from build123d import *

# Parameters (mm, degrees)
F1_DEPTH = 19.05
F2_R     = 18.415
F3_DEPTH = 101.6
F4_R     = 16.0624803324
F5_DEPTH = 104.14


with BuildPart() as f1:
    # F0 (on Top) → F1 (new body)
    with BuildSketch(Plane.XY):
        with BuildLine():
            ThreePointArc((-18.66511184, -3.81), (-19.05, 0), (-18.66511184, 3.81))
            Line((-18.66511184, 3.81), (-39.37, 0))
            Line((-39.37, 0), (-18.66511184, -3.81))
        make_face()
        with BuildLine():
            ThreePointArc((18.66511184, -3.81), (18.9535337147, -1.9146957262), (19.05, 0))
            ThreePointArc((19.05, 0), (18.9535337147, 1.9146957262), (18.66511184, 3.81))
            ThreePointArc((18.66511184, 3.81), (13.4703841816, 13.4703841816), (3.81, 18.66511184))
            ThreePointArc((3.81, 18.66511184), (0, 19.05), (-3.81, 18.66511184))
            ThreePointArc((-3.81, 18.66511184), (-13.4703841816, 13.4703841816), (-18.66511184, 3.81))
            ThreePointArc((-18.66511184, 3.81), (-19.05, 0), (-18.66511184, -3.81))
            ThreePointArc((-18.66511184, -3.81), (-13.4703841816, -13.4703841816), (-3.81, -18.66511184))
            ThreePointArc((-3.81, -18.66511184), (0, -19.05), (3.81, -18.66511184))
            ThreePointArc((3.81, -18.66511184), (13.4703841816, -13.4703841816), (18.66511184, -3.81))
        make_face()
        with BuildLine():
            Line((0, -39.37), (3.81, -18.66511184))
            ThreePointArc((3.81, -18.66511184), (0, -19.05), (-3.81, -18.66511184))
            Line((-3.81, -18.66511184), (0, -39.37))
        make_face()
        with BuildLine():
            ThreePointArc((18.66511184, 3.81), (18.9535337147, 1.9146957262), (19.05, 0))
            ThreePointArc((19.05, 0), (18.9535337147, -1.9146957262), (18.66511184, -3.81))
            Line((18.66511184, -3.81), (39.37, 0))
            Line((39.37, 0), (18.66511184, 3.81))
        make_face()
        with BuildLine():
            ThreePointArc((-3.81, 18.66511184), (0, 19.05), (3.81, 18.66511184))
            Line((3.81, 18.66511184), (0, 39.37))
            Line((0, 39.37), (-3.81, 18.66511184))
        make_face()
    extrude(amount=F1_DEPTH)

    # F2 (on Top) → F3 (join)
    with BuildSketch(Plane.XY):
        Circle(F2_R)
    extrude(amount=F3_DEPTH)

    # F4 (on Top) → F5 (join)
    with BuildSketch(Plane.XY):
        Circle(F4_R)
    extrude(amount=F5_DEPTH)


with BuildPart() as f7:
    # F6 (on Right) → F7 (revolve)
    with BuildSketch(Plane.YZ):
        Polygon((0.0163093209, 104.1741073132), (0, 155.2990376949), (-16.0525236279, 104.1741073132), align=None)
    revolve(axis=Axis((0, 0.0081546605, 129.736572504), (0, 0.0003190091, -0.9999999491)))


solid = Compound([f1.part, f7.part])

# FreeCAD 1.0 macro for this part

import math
import FreeCAD as App
import Part
import Sketcher
from FreeCAD import Vector
Q = App.Units.Quantity


def add_polygon(sketch, points):
    """Adds a closed chain of lines whose ends are joined by coincident constraints."""
    first, n = sketch.GeometryCount, len(points)
    for a, b in zip(points, points[1:] + points[:1]):
        sketch.addGeometry(Part.LineSegment(App.Vector(*a, 0), App.Vector(*b, 0)), False)
    for i in range(n):
        sketch.addConstraint(Sketcher.Constraint("Coincident", first + i, 2, first + (i + 1) % n, 1))

doc = App.newDocument("Part")
body = doc.addObject("PartDesign::Body", "Body")

# Sketch on XY plane
sketch1 = body.newObject("Sketcher::SketchObject", "Sketch")
sketch1.AttachmentSupport = (doc.getObject("XY_Plane"), [""])
sketch1.MapMode = "FlatFace"
sketch1.addGeometry([
    Part.LineSegment(Vector(-19, 4, 0), Vector(-39, 0, 0)),  # 0
    Part.LineSegment(Vector(-39, 0, 0), Vector(-19, -4, 0)),  # 1
    Part.ArcOfCircle(Part.Circle(Vector(0, 0, 0), Vector(0, 0, 1), 19), math.radians(-168), math.radians(-102)),  # 2
    Part.LineSegment(Vector(-4, -19, 0), Vector(0, -39, 0)),  # 3
    Part.LineSegment(Vector(0, -39, 0), Vector(4, -19, 0)),  # 4
    Part.ArcOfCircle(Part.Circle(Vector(0, 0, 0), Vector(0, 0, 1), 19), math.radians(-78), math.radians(-12)),  # 5
    Part.LineSegment(Vector(19, -4, 0), Vector(39, 0, 0)),  # 6
    Part.LineSegment(Vector(39, 0, 0), Vector(19, 4, 0)),  # 7
    Part.ArcOfCircle(Part.Circle(Vector(0, 0, 0), Vector(0, 0, 1), 19), math.radians(12), math.radians(78)),  # 8
    Part.LineSegment(Vector(4, 19, 0), Vector(0, 39, 0)),  # 9
    Part.LineSegment(Vector(0, 39, 0), Vector(-4, 19, 0)),  # 10
    Part.ArcOfCircle(Part.Circle(Vector(0, 0, 0), Vector(0, 0, 1), 19), math.radians(102), math.radians(168)),  # 11
], False)
sketch1.addConstraint([
    Sketcher.Constraint("Coincident", 0, 2, 1, 1),
    Sketcher.Constraint("Coincident", 1, 2, 2, 1),
    Sketcher.Constraint("Coincident", 2, 2, 3, 1),
    Sketcher.Constraint("Coincident", 3, 2, 4, 1),
    Sketcher.Constraint("Coincident", 4, 2, 5, 1),
    Sketcher.Constraint("Coincident", 5, 2, 6, 1),
    Sketcher.Constraint("Coincident", 6, 2, 7, 1),
    Sketcher.Constraint("Coincident", 7, 2, 8, 1),
    Sketcher.Constraint("Coincident", 8, 2, 9, 1),
    Sketcher.Constraint("Coincident", 9, 2, 10, 1),
    Sketcher.Constraint("Coincident", 10, 2, 11, 1),
    Sketcher.Constraint("Coincident", 11, 2, 0, 1),
    Sketcher.Constraint("Coincident", 2, 3, -1, 1),
    Sketcher.Constraint("Coincident", 5, 3, -1, 1),
    Sketcher.Constraint("Coincident", 8, 3, -1, 1),
    Sketcher.Constraint("Coincident", 11, 3, -1, 1),
    Sketcher.Constraint("Equal", 2, 5),
    Sketcher.Constraint("Equal", 5, 8),
    Sketcher.Constraint("Equal", 8, 11),
    Sketcher.Constraint("Symmetric", 0, 2, 6, 2, -1, 1),
    Sketcher.Constraint("Symmetric", 3, 2, 9, 2, -1, 1),
    Sketcher.Constraint("PointOnObject", 0, 2, -1),
    Sketcher.Constraint("PointOnObject", 3, 2, -2),
    Sketcher.Constraint("Perpendicular", 0, 3),
    Sketcher.Constraint("Perpendicular", 1, 4),
    Sketcher.Constraint("Perpendicular", 3, 6),
    Sketcher.Constraint("Perpendicular", 4, 7),
    Sketcher.Constraint("Perpendicular", 6, 9),
    Sketcher.Constraint("Perpendicular", 7, 10),
    Sketcher.Constraint("Horizontal", 2, 2, 4, 2),
    Sketcher.Constraint("Equal", 1, 3),
    Sketcher.Constraint("Radius", 2, Q("0.75 in")),
    Sketcher.Constraint("DistanceX", 2, 2, 4, 2, Q("0.3 in")),
    Sketcher.Constraint("DistanceX", 0, 2, -1, 1, Q("1.55 in")),
])
pad1 = body.newObject("PartDesign::Pad", "Pad")
pad1.Profile = sketch1
pad1.Length = Q("0.75 in")

# Sketch on XY plane
sketch2 = body.newObject("Sketcher::SketchObject", "Sketch001")
sketch2.AttachmentSupport = (doc.getObject("XY_Plane"), [""])
sketch2.MapMode = "FlatFace"
sketch2.addGeometry(Part.Circle(Vector(0, 0, 0), Vector(0, 0, 1), 18), False)
sketch2.addConstraint([
    Sketcher.Constraint("Coincident", 0, 3, -1, 1),
    Sketcher.Constraint("Diameter", 0, Q("1.45 in")),
])
pad2 = body.newObject("PartDesign::Pad", "Pad001")
pad2.Profile = sketch2
pad2.Length = Q("4 in")

# Sketch on XY plane
sketch3 = body.newObject("Sketcher::SketchObject", "Sketch002")
sketch3.AttachmentSupport = (doc.getObject("XY_Plane"), [""])
sketch3.MapMode = "FlatFace"
sketch3.addGeometry(Part.Circle(Vector(0, 0, 0), Vector(0, 0, 1), 16), False)
sketch3.addConstraint([
    Sketcher.Constraint("Coincident", 0, 3, -1, 1),
    Sketcher.Constraint("Diameter", 0, 32.124961),
])
pad3 = body.newObject("PartDesign::Pad", "Pad002")
pad3.Profile = sketch3
pad3.Length = Q("4.1 in")
body2 = doc.addObject("PartDesign::Body", "Body001")

# Sketch on YZ plane
sketch4 = body2.newObject("Sketcher::SketchObject", "Sketch003")
sketch4.AttachmentSupport = (doc.getObject("YZ_Plane001"), [""])
sketch4.MapMode = "FlatFace"
add_polygon(sketch4, [(0, 104), (0, 155), (-16, 104)])  # lines 0-2
sketch4.addGeometry(Part.LineSegment(Vector(0, 155, 0), Vector(0, 104, 0)), True)  # axis
sketch4.addConstraint([
    Sketcher.Constraint("Horizontal", 2),
    Sketcher.Constraint("Coincident", 3, 1, 0, 2),
    Sketcher.Constraint("Coincident", 3, 2, 2, 2),
    Sketcher.Constraint("PointOnObject", 0, 2, -2),
    Sketcher.Constraint("DistanceX", 2, 1, 2, 2, 16.068833),
    Sketcher.Constraint("DistanceX", -1, 1, 2, 2, 0.016309),
    Sketcher.Constraint("DistanceY", 1, 2, 0, 2, 51.12493),
    Sketcher.Constraint("DistanceY", -1, 1, 0, 2, 155.299038),
])
revolution = body2.newObject("PartDesign::Revolution", "Revolution")
revolution.Profile = sketch4
revolution.ReferenceAxis = (sketch4, ["Axis0"])
revolution.Angle = 360

doc.recompute()
